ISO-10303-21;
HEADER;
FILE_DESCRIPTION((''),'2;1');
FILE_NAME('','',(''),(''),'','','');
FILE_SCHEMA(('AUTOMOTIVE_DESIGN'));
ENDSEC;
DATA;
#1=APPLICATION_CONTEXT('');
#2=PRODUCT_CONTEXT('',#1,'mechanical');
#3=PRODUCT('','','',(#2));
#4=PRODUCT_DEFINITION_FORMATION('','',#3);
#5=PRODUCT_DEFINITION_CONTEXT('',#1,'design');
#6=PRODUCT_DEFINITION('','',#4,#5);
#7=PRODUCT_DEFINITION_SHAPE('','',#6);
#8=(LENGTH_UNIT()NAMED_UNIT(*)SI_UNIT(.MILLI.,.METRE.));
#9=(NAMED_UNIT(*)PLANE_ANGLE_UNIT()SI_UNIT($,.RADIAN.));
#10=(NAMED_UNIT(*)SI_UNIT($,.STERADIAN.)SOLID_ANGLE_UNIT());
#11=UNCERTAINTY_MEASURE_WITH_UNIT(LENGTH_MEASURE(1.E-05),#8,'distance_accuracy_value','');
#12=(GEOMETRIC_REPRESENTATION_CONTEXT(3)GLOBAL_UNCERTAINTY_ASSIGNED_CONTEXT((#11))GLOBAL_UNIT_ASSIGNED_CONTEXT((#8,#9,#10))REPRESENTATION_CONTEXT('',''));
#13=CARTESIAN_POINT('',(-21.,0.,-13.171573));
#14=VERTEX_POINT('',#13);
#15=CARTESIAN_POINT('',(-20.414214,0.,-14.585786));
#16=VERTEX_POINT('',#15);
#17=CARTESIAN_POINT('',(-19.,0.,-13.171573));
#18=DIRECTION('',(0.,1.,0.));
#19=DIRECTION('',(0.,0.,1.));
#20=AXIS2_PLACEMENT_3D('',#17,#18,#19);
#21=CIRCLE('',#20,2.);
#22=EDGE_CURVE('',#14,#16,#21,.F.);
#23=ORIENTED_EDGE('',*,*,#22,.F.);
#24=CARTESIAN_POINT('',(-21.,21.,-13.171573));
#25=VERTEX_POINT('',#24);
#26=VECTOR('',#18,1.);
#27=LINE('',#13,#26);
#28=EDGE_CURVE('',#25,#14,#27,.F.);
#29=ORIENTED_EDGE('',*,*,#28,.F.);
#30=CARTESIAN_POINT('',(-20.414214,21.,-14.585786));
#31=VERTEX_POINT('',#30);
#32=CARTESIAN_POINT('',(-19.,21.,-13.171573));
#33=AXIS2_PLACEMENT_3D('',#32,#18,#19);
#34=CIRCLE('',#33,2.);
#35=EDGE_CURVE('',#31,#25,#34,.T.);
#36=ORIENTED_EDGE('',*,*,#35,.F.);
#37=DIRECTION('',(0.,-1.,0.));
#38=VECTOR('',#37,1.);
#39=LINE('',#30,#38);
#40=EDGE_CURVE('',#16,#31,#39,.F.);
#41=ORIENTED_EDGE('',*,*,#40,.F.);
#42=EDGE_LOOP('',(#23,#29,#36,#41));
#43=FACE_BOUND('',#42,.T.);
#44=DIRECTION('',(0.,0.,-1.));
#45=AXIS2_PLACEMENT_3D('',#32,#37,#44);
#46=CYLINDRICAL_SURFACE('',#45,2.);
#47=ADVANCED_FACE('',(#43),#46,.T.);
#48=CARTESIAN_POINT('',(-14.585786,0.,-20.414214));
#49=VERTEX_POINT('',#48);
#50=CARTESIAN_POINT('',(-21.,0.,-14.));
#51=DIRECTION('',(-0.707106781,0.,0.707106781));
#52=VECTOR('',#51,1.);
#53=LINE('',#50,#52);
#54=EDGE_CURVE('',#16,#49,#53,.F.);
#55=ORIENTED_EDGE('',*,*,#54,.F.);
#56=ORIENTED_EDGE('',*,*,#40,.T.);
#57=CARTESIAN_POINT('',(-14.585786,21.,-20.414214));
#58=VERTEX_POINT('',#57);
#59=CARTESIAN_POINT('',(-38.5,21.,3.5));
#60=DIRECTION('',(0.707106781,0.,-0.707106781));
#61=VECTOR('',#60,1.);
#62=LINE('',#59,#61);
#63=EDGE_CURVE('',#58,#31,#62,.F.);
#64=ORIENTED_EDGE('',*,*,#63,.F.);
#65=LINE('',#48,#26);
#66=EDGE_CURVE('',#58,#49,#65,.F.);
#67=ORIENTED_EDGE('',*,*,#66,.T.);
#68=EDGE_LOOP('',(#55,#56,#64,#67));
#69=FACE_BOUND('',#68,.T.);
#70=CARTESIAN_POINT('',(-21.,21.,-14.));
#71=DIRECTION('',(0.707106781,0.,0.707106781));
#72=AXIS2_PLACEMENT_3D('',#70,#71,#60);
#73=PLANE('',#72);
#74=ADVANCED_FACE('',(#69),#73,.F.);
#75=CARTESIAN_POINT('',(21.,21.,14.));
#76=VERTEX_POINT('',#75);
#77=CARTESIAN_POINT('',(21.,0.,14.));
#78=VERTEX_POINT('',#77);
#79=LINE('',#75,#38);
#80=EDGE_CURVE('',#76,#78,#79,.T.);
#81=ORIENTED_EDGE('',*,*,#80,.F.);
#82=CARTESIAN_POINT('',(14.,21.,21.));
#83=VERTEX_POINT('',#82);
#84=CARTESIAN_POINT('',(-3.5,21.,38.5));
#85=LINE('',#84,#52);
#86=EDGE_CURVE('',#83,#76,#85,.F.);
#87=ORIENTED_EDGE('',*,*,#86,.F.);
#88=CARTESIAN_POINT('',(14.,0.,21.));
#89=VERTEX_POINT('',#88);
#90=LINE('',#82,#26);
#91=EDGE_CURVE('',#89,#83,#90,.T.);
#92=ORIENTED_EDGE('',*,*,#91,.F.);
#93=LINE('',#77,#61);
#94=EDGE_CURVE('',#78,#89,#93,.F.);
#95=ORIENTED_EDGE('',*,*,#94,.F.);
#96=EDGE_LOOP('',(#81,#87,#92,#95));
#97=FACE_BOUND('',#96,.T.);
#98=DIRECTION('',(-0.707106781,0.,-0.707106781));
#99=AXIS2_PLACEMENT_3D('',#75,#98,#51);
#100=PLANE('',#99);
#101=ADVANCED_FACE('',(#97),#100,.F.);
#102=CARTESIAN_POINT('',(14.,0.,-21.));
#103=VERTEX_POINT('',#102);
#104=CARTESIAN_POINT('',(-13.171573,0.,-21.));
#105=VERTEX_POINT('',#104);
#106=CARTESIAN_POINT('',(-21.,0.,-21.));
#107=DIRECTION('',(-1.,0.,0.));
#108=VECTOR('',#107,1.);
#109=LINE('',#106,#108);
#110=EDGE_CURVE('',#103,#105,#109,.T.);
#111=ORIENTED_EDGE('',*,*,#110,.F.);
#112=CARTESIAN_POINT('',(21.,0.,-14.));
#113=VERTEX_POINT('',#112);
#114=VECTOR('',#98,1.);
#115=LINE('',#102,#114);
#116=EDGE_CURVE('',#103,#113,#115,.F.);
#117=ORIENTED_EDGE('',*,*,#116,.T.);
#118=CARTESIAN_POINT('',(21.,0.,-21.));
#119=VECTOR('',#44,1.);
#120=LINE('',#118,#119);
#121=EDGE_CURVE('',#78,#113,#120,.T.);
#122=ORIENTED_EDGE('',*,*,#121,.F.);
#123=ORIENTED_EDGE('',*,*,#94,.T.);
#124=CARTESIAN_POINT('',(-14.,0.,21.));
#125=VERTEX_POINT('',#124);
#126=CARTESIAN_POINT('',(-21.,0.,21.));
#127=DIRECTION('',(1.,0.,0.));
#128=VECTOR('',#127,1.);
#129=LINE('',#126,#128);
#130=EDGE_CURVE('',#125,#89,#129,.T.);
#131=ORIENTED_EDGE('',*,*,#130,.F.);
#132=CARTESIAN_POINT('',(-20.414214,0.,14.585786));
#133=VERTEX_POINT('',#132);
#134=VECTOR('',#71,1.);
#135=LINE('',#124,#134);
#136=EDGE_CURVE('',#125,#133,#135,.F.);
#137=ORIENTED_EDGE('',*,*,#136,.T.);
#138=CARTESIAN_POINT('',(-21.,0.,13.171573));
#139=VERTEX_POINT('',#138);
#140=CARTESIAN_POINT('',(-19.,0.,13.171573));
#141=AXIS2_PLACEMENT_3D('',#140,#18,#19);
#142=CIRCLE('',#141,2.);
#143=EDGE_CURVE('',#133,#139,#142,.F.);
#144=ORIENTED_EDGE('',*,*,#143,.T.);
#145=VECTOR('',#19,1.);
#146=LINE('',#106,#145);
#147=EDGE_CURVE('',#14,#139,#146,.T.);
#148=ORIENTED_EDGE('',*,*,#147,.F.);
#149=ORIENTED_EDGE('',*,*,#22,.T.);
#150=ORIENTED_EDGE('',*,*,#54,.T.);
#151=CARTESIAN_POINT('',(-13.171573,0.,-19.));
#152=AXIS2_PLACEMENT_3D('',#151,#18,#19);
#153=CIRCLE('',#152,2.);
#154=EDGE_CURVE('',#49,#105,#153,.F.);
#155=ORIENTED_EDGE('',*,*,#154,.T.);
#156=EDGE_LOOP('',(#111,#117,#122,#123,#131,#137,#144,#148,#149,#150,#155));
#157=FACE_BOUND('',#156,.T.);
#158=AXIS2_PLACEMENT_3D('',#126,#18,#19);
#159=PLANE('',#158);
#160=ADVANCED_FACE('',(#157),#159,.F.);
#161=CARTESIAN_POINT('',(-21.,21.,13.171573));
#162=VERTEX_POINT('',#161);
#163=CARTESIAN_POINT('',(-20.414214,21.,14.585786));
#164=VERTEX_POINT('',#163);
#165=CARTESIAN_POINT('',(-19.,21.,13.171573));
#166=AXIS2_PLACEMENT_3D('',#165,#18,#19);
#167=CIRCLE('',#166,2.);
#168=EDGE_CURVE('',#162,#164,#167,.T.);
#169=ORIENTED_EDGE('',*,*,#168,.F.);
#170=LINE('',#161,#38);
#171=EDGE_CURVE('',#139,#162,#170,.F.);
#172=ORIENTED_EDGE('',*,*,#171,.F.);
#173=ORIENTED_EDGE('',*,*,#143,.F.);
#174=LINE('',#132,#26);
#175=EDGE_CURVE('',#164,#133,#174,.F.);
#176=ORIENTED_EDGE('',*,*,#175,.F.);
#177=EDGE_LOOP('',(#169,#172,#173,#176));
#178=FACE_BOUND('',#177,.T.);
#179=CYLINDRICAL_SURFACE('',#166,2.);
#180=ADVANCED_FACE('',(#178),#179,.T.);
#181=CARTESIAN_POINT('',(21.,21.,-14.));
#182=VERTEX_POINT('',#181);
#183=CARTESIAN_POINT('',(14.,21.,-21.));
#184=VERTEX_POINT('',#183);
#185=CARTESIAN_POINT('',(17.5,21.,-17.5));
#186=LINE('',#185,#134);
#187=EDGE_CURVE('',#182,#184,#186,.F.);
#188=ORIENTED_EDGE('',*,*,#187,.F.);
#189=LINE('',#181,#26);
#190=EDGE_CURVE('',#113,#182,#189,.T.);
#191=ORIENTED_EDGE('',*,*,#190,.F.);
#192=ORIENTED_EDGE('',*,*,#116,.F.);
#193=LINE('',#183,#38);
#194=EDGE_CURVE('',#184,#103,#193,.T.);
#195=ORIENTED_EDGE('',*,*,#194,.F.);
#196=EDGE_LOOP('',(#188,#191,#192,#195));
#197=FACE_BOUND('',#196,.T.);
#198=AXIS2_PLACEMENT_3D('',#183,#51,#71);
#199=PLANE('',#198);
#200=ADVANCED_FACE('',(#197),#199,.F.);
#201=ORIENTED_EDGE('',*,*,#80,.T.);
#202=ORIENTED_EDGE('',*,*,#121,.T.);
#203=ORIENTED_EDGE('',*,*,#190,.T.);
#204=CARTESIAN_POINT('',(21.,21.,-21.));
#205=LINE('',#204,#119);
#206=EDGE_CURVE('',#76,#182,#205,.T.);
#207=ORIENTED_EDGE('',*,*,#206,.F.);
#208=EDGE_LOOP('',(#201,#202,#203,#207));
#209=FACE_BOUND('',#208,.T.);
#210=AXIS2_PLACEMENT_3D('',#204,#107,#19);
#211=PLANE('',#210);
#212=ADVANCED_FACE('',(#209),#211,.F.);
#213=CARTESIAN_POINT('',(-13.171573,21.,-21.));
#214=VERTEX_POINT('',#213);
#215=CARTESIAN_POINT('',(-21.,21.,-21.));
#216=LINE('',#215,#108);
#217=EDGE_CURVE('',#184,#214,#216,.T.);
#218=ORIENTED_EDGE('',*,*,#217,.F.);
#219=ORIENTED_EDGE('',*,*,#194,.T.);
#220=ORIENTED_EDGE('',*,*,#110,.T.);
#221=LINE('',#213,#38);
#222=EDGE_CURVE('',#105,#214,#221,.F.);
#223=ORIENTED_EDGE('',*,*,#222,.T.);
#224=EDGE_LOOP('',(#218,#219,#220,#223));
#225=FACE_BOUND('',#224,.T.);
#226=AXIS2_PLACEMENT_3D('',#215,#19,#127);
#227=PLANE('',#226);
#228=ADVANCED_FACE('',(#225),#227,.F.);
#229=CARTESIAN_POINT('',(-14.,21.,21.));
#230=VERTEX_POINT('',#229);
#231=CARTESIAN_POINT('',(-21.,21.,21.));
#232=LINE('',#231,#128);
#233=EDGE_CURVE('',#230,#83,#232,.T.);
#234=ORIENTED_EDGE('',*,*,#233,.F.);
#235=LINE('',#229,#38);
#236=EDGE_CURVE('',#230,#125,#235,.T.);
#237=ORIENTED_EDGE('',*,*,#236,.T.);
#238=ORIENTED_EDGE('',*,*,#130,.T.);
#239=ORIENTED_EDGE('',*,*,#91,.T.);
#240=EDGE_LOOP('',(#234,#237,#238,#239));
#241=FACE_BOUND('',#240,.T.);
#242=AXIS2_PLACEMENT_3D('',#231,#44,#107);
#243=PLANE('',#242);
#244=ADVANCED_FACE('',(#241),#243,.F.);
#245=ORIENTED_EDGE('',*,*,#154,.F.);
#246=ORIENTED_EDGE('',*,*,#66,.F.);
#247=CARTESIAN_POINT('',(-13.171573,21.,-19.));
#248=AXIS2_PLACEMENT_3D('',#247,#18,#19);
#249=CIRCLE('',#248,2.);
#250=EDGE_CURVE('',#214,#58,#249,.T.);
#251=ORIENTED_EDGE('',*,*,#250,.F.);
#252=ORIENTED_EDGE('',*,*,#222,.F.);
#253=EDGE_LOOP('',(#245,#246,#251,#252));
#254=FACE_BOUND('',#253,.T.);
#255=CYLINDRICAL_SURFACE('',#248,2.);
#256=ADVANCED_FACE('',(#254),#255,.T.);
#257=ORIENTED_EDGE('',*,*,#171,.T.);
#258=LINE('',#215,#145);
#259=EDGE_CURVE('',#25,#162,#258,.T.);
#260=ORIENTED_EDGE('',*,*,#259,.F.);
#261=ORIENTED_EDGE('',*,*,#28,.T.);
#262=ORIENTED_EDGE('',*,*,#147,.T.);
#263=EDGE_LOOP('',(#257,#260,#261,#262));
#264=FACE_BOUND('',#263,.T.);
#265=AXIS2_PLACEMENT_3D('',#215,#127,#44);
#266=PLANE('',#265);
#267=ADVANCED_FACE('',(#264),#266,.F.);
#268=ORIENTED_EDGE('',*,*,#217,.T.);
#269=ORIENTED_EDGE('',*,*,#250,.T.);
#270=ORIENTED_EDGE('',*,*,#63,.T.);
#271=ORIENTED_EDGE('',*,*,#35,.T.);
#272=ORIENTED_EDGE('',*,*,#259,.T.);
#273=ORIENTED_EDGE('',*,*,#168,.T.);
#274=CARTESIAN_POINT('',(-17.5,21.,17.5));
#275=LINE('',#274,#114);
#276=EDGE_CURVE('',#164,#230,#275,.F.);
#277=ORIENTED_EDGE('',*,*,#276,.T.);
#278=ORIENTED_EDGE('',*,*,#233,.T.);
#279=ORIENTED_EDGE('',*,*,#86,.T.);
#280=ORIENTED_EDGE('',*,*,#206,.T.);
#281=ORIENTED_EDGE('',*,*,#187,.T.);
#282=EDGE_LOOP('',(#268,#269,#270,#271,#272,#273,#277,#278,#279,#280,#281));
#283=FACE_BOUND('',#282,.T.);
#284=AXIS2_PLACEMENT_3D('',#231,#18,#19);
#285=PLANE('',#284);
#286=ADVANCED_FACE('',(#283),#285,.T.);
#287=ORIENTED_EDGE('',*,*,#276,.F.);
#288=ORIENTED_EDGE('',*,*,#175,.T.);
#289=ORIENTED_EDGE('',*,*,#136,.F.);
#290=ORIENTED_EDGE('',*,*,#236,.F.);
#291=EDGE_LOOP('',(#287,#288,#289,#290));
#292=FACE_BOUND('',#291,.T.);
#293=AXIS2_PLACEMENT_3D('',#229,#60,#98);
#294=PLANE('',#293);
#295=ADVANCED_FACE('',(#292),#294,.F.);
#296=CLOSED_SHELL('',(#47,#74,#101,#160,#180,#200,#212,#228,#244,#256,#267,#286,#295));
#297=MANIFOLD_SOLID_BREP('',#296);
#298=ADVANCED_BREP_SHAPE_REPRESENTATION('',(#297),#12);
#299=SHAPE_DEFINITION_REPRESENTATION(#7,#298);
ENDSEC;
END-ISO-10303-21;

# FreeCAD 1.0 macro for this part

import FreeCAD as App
import Part
import Sketcher
Q = App.Units.Quantity


def edges_at(feature, points):
    """Names of the edges that pass closest to the given points."""
    edges = feature.Shape.Edges
    near = lambda p: min(range(len(edges)), key=lambda i: edges[i].distToShape(Part.Vertex(*p))[0])
    return sorted({f"Edge{near(p) + 1}" for p in points})

doc = App.newDocument("Part")
body = doc.addObject("PartDesign::Body", "Body")

sketch1 = body.newObject("Sketcher::SketchObject", "Sketch")
sketch1.AttachmentSupport = (doc.getObject("XZ_Plane"), [""])
sketch1.MapMode = "FlatFace"
sketch1.addGeometry([
    Part.LineSegment(App.Vector(-21, -21, 0), App.Vector(-21, 21, 0)),
    Part.LineSegment(App.Vector(-21, 21, 0), App.Vector(21, 21, 0)),
    Part.LineSegment(App.Vector(21, 21, 0), App.Vector(21, -21, 0)),
    Part.LineSegment(App.Vector(21, -21, 0), App.Vector(-21, -21, 0)),
], False)
sketch1.addConstraint([
    Sketcher.Constraint("Coincident", 0, 2, 1, 1),
    Sketcher.Constraint("Coincident", 1, 2, 2, 1),
    Sketcher.Constraint("Coincident", 2, 2, 3, 1),
    Sketcher.Constraint("Coincident", 3, 2, 0, 1),
    Sketcher.Constraint("Vertical", 0),
    Sketcher.Constraint("Horizontal", 1),
    Sketcher.Constraint("Vertical", 2),
    Sketcher.Constraint("Horizontal", 3),
    Sketcher.Constraint("Symmetric", 0, 2, 2, 2, -1, 1),
    Sketcher.Constraint("Equal", 3, 0),
    Sketcher.Constraint("DistanceX", 1, 1, 1, 2, Q("42 mm")),
])
pad1 = body.newObject("PartDesign::Pad", "Pad")
pad1.Profile = sketch1
pad1.Length = 21
pad1.Reversed = True
doc.recompute()

chamfer = body.newObject("PartDesign::Chamfer", "Chamfer")
chamfer.Base = (pad1, edges_at(pad1, [
    (-21, 10.5, -21),
    (21, 10.5, -21),
    (21, 10.5, 21),
    (-21, 10.5, 21),
]))
chamfer.Size = 7
doc.recompute()

fillet = body.newObject("PartDesign::Fillet", "Fillet")
fillet.Base = (chamfer, edges_at(chamfer, [(-21, 10.5, 14), (-21, 10.5, -14), (-14, 10.5, -21)]))
fillet.Radius = 2

doc.recompute()
